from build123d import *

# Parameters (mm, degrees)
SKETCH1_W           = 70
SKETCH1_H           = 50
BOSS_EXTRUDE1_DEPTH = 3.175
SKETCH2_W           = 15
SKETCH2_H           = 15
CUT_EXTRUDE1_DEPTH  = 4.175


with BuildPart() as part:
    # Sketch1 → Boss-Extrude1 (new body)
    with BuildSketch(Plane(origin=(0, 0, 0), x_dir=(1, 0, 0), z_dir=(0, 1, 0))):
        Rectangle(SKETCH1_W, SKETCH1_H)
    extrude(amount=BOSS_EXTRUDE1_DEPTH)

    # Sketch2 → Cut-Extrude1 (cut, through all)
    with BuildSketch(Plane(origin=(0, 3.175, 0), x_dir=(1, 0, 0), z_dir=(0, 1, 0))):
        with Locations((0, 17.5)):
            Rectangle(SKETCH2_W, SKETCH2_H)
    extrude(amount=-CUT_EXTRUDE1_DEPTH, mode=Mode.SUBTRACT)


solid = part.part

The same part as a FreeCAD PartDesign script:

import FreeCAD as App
import Part
import Sketcher
from FreeCAD import Vector


def add_polygon(sketch, points):
    """Adds a closed chain of lines whose ends are joined by coincident constraints."""
    first, n = sketch.GeometryCount, len(points)
    for a, b in zip(points, points[1:] + points[:1]):
        sketch.addGeometry(Part.LineSegment(App.Vector(*a, 0), App.Vector(*b, 0)), False)
    for i in range(n):
        sketch.addConstraint(Sketcher.Constraint("Coincident", first + i, 2, first + (i + 1) % n, 1))

doc = App.newDocument("Part")
body = doc.addObject("PartDesign::Body", "Body")

# Sketch on XZ plane
sketch1 = body.newObject("Sketcher::SketchObject", "Sketch")
sketch1.AttachmentSupport = (doc.getObject("XZ_Plane"), [""])
sketch1.MapMode = "FlatFace"
add_polygon(sketch1, [(-35, -25), (-35, 25), (35, 25), (35, -25)])  # lines 0-3
sketch1.addConstraint([
    Sketcher.Constraint("Vertical", 0),
    Sketcher.Constraint("Horizontal", 1),
    Sketcher.Constraint("Vertical", 2),
    Sketcher.Constraint("Horizontal", 3),
    Sketcher.Constraint("Symmetric", 0, 2, 2, 2, -1, 1),
    Sketcher.Constraint("DistanceX", 1, 1, 1, 2, 70.0),
    Sketcher.Constraint("DistanceY", 0, 1, 0, 2, 50.0),
])
pad1 = body.newObject("PartDesign::Pad", "Pad")
pad1.Profile = sketch1
pad1.Length = 3.175
pad1.Reversed = True

# Sketch on XZ plane
sketch2 = body.newObject("Sketcher::SketchObject", "Sketch001")
sketch2.AttachmentSupport = (doc.getObject("XZ_Plane"), [""])
sketch2.MapMode = "FlatFace"
sketch2.AttachmentOffset = App.Placement(Vector(0, 0, -3.175), App.Rotation())
add_polygon(sketch2, [(-7.5, -25), (-7.5, -10), (7.5, -10), (7.5, -25)])  # lines 0-3
sketch2.addConstraint([
    Sketcher.Constraint("Vertical", 0),
    Sketcher.Constraint("Horizontal", 1),
    Sketcher.Constraint("Vertical", 2),
    Sketcher.Constraint("Horizontal", 3),
    Sketcher.Constraint("Equal", 3, 0),
    Sketcher.Constraint("DistanceX", 1, 1, 1, 2, 15.0),
    Sketcher.Constraint("DistanceY", 0, 2, -1, 1, 10.0),
    Sketcher.Constraint("DistanceX", 0, 2, -1, 1, 7.5),
])
pocket1 = body.newObject("PartDesign::Pocket", "Pocket")
pocket1.Profile = sketch2
pocket1.Type = "ThroughAll"
pocket1.Reversed = True

doc.recompute()
